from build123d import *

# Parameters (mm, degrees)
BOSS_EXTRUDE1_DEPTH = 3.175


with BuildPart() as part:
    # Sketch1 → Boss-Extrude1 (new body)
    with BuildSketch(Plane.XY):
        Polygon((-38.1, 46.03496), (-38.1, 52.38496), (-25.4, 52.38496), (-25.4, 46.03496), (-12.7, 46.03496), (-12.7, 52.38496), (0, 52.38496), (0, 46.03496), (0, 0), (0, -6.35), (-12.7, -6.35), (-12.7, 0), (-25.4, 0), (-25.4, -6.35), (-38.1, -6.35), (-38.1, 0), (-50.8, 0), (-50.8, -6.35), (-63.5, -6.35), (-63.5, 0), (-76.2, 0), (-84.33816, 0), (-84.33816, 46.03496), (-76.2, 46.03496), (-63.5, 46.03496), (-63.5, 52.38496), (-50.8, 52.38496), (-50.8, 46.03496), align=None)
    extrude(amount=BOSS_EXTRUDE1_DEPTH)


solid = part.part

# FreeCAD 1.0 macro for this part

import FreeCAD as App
import Part
import Sketcher

V = App.Vector
Q = App.Units.Quantity

doc = App.newDocument("Part")
body = doc.addObject("PartDesign::Body", "Body")

sketch1 = body.newObject("Sketcher::SketchObject", "Sketch")
sketch1.AttachmentSupport = (doc.getObject("XY_Plane"), [""])
sketch1.MapMode = "FlatFace"
sketch1.addGeometry([
    Part.LineSegment(V(-38, 52, 0), V(-38, 46, 0)),
    Part.LineSegment(V(-38, 46, 0), V(-51, 46, 0)),
    Part.LineSegment(V(-51, 46, 0), V(-51, 52, 0)),
    Part.LineSegment(V(-51, 52, 0), V(-64, 52, 0)),
    Part.LineSegment(V(-64, 52, 0), V(-64, 46, 0)),
    Part.LineSegment(V(-64, 46, 0), V(-84, 46, 0)),
    Part.LineSegment(V(-84, 46, 0), V(-84, 0, 0)),
    Part.LineSegment(V(-84, 0, 0), V(-64, 0, 0)),
    Part.LineSegment(V(-64, 0, 0), V(-64, -6, 0)),
    Part.LineSegment(V(-64, -6, 0), V(-51, -6, 0)),
    Part.LineSegment(V(-51, -6, 0), V(-51, 0, 0)),
    Part.LineSegment(V(-51, 0, 0), V(-38, 0, 0)),
    Part.LineSegment(V(-38, 0, 0), V(-38, -6, 0)),
    Part.LineSegment(V(-38, -6, 0), V(-25, -6, 0)),
    Part.LineSegment(V(-25, -6, 0), V(-25, 0, 0)),
    Part.LineSegment(V(-25, 0, 0), V(-13, 0, 0)),
    Part.LineSegment(V(-13, 0, 0), V(-13, -6, 0)),
    Part.LineSegment(V(-13, -6, 0), V(0, -6, 0)),
    Part.LineSegment(V(0, -6, 0), V(0, 52, 0)),
    Part.LineSegment(V(0, 52, 0), V(-13, 52, 0)),
    Part.LineSegment(V(-13, 52, 0), V(-13, 46, 0)),
    Part.LineSegment(V(-13, 46, 0), V(-25, 46, 0)),
    Part.LineSegment(V(-25, 46, 0), V(-25, 52, 0)),
    Part.LineSegment(V(-25, 52, 0), V(-38, 52, 0)),
], False)
sketch1.addConstraint([
    Sketcher.Constraint("Coincident", 0, 2, 1, 1),
    Sketcher.Constraint("Coincident", 1, 2, 2, 1),
    Sketcher.Constraint("Coincident", 2, 2, 3, 1),
    Sketcher.Constraint("Coincident", 3, 2, 4, 1),
    Sketcher.Constraint("Coincident", 4, 2, 5, 1),
    Sketcher.Constraint("Coincident", 5, 2, 6, 1),
    Sketcher.Constraint("Coincident", 6, 2, 7, 1),
    Sketcher.Constraint("Coincident", 7, 2, 8, 1),
    Sketcher.Constraint("Coincident", 8, 2, 9, 1),
    Sketcher.Constraint("Coincident", 9, 2, 10, 1),
    Sketcher.Constraint("Coincident", 10, 2, 11, 1),
    Sketcher.Constraint("Coincident", 11, 2, 12, 1),
    Sketcher.Constraint("Coincident", 12, 2, 13, 1),
    Sketcher.Constraint("Coincident", 13, 2, 14, 1),
    Sketcher.Constraint("Coincident", 14, 2, 15, 1),
    Sketcher.Constraint("Coincident", 15, 2, 16, 1),
    Sketcher.Constraint("Coincident", 16, 2, 17, 1),
    Sketcher.Constraint("Coincident", 17, 2, 18, 1),
    Sketcher.Constraint("Coincident", 18, 2, 19, 1),
    Sketcher.Constraint("Coincident", 19, 2, 20, 1),
    Sketcher.Constraint("Coincident", 20, 2, 21, 1),
    Sketcher.Constraint("Coincident", 21, 2, 22, 1),
    Sketcher.Constraint("Coincident", 22, 2, 23, 1),
    Sketcher.Constraint("Coincident", 23, 2, 0, 1),
    Sketcher.Constraint("Vertical", 0),
    Sketcher.Constraint("Horizontal", 1),
    Sketcher.Constraint("Vertical", 2),
    Sketcher.Constraint("Horizontal", 3),
    Sketcher.Constraint("Vertical", 4),
    Sketcher.Constraint("Horizontal", 5),
    Sketcher.Constraint("Vertical", 6),
    Sketcher.Constraint("Horizontal", 7),
    Sketcher.Constraint("Vertical", 8),
    Sketcher.Constraint("Horizontal", 9),
    Sketcher.Constraint("Vertical", 10),
    Sketcher.Constraint("Horizontal", 11),
    Sketcher.Constraint("Vertical", 12),
    Sketcher.Constraint("Horizontal", 13),
    Sketcher.Constraint("Vertical", 14),
    Sketcher.Constraint("Horizontal", 15),
    Sketcher.Constraint("Vertical", 16),
    Sketcher.Constraint("Horizontal", 17),
    Sketcher.Constraint("Vertical", 18),
    Sketcher.Constraint("Horizontal", 19),
    Sketcher.Constraint("Vertical", 20),
    Sketcher.Constraint("Horizontal", 21),
    Sketcher.Constraint("Vertical", 22),
    Sketcher.Constraint("Horizontal", 23),
    Sketcher.Constraint("PointOnObject", 6, 2, -1),
    Sketcher.Constraint("PointOnObject", 10, 2, -1),
    Sketcher.Constraint("PointOnObject", 14, 2, -1),
    Sketcher.Constraint("PointOnObject", 17, 2, -2),
    Sketcher.Constraint("Horizontal", 1, 2, 4, 2),
    Sketcher.Constraint("Horizontal", 9, 2, 12, 2),
    Sketcher.Constraint("Horizontal", 13, 2, 16, 2),
    Sketcher.Constraint("Horizontal", 3, 2, 18, 2),
    Sketcher.Constraint("Horizontal", 5, 2, 20, 2),
    Sketcher.Constraint("Horizontal", 19, 2, 22, 2),
    Sketcher.Constraint("Vertical", 4, 2, 7, 2),
    Sketcher.Constraint("Vertical", 2, 2, 9, 2),
    Sketcher.Constraint("Vertical", 0, 2, 11, 2),
    Sketcher.Constraint("Vertical", 16, 2, 19, 2),
    Sketcher.Constraint("Vertical", 14, 2, 21, 2),
    Sketcher.Constraint("Equal", 1, 3),
    Sketcher.Constraint("Equal", 11, 13),
    Sketcher.Constraint("Equal", 13, 15),
    Sketcher.Constraint("Equal", 15, 17),
    Sketcher.Constraint("Equal", 4, 8),
    Sketcher.Constraint("DistanceX", 1, 2, 1, 1, Q("0.5 in")),
    Sketcher.Constraint("DistanceY", 0, 2, 0, 1, Q("0.25 in")),
    Sketcher.Constraint("DistanceX", 5, 2, 5, 1, Q("0.8204 in")),
    Sketcher.Constraint("DistanceY", 6, 2, 6, 1, Q("1.8124 in")),
])
pad1 = body.newObject("PartDesign::Pad", "Pad")
pad1.Profile = sketch1
pad1.Length = Q("0.125 in")

doc.recompute()
